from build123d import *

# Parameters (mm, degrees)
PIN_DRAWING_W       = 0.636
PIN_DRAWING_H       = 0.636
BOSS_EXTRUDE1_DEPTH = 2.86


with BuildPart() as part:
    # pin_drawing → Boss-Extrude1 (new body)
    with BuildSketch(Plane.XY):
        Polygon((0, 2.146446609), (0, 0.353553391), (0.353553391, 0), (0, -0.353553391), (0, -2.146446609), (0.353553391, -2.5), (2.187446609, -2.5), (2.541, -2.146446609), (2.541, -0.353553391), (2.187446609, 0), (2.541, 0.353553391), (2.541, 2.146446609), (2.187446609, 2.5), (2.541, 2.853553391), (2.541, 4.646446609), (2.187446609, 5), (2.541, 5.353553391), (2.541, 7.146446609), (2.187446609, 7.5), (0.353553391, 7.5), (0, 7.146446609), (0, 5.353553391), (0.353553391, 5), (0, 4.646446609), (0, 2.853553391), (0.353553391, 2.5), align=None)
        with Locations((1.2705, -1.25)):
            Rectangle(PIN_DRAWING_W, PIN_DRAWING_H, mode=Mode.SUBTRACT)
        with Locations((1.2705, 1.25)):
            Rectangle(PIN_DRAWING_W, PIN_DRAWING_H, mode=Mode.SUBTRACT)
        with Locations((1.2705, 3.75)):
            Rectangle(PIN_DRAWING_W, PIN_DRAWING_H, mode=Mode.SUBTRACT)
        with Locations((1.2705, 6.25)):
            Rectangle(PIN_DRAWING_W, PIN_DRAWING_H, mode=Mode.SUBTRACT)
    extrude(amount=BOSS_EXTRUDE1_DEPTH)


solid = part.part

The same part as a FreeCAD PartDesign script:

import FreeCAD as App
import Part
import Sketcher

doc = App.newDocument("Part")
params = doc.addObject("Spreadsheet::Sheet", "Params")
for row, (alias, value) in enumerate([
    ("sketch1_length", "0.5 mm"),
    ("pad1_length", "2.86 mm"),
], start=1):
    params.set(f"A{row}", alias)
    params.set(f"B{row}", "=" + value)
    params.setAlias(f"B{row}", alias)

body = doc.addObject("PartDesign::Body", "Body")

sketch1 = doc.addObject("Sketcher::SketchObject", "Sketch")
body.addObject(sketch1)
sketch1.AttachmentSupport = (doc.XY_Plane, [""])
sketch1.MapMode = "FlatFace"
sketch1.addGeometry([
    Part.LineSegment(App.Vector(0, 2.146447, 0), App.Vector(0, 0.353553, 0)),
    Part.LineSegment(App.Vector(0, 0.353553, 0), App.Vector(0.353553, 0, 0)),
    Part.LineSegment(App.Vector(0.353553, 0, 0), App.Vector(0, -0.353553, 0)),
    Part.LineSegment(App.Vector(0, -0.353553, 0), App.Vector(0, -2.146447, 0)),
    Part.LineSegment(App.Vector(0, -2.146447, 0), App.Vector(0.353553, -2.5, 0)),
    Part.LineSegment(App.Vector(0.353553, -2.5, 0), App.Vector(2.187447, -2.5, 0)),
    Part.LineSegment(App.Vector(2.187447, -2.5, 0), App.Vector(2.541, -2.146447, 0)),
    Part.LineSegment(App.Vector(2.541, -2.146447, 0), App.Vector(2.541, -0.353553, 0)),
    Part.LineSegment(App.Vector(2.541, -0.353553, 0), App.Vector(2.187447, 0, 0)),
    Part.LineSegment(App.Vector(2.187447, 0, 0), App.Vector(2.541, 0.353553, 0)),
    Part.LineSegment(App.Vector(2.541, 0.353553, 0), App.Vector(2.541, 2.146447, 0)),
    Part.LineSegment(App.Vector(2.541, 2.146447, 0), App.Vector(2.187447, 2.5, 0)),
    Part.LineSegment(App.Vector(2.187447, 2.5, 0), App.Vector(2.541, 2.853553, 0)),
    Part.LineSegment(App.Vector(2.541, 2.853553, 0), App.Vector(2.541, 4.646447, 0)),
    Part.LineSegment(App.Vector(2.541, 4.646447, 0), App.Vector(2.187447, 5, 0)),
    Part.LineSegment(App.Vector(2.187447, 5, 0), App.Vector(2.541, 5.353553, 0)),
    Part.LineSegment(App.Vector(2.541, 5.353553, 0), App.Vector(2.541, 7.146447, 0)),
    Part.LineSegment(App.Vector(2.541, 7.146447, 0), App.Vector(2.187447, 7.5, 0)),
    Part.LineSegment(App.Vector(2.187447, 7.5, 0), App.Vector(0.353553, 7.5, 0)),
    Part.LineSegment(App.Vector(0.353553, 7.5, 0), App.Vector(0, 7.146447, 0)),
    Part.LineSegment(App.Vector(0, 7.146447, 0), App.Vector(0, 5.353553, 0)),
    Part.LineSegment(App.Vector(0, 5.353553, 0), App.Vector(0.353553, 5, 0)),
    Part.LineSegment(App.Vector(0.353553, 5, 0), App.Vector(0, 4.646447, 0)),
    Part.LineSegment(App.Vector(0, 4.646447, 0), App.Vector(0, 2.853553, 0)),
    Part.LineSegment(App.Vector(0, 2.853553, 0), App.Vector(0.353553, 2.5, 0)),
    Part.LineSegment(App.Vector(0.353553, 2.5, 0), App.Vector(0, 2.146447, 0)),
    Part.LineSegment(App.Vector(1.5885, -1.568, 0), App.Vector(0.9525, -1.568, 0)),
    Part.LineSegment(App.Vector(0.9525, -1.568, 0), App.Vector(0.9525, -0.932, 0)),
    Part.LineSegment(App.Vector(0.9525, -0.932, 0), App.Vector(1.5885, -0.932, 0)),
    Part.LineSegment(App.Vector(1.5885, -0.932, 0), App.Vector(1.5885, -1.568, 0)),
    Part.LineSegment(App.Vector(1.5885, 0.932, 0), App.Vector(0.9525, 0.932, 0)),
    Part.LineSegment(App.Vector(0.9525, 0.932, 0), App.Vector(0.9525, 1.568, 0)),
    Part.LineSegment(App.Vector(0.9525, 1.568, 0), App.Vector(1.5885, 1.568, 0)),
    Part.LineSegment(App.Vector(1.5885, 1.568, 0), App.Vector(1.5885, 0.932, 0)),
    Part.LineSegment(App.Vector(1.5885, 3.432, 0), App.Vector(0.9525, 3.432, 0)),
    Part.LineSegment(App.Vector(0.9525, 3.432, 0), App.Vector(0.9525, 4.068, 0)),
    Part.LineSegment(App.Vector(0.9525, 4.068, 0), App.Vector(1.5885, 4.068, 0)),
    Part.LineSegment(App.Vector(1.5885, 4.068, 0), App.Vector(1.5885, 3.432, 0)),
    Part.LineSegment(App.Vector(1.5885, 5.932, 0), App.Vector(0.9525, 5.932, 0)),
    Part.LineSegment(App.Vector(0.9525, 5.932, 0), App.Vector(0.9525, 6.568, 0)),
    Part.LineSegment(App.Vector(0.9525, 6.568, 0), App.Vector(1.5885, 6.568, 0)),
    Part.LineSegment(App.Vector(1.5885, 6.568, 0), App.Vector(1.5885, 5.932, 0)),
], False)
sketch1.addConstraint([
    Sketcher.Constraint("Coincident", 0, 2, 1, 1),
    Sketcher.Constraint("Coincident", 1, 2, 2, 1),
    Sketcher.Constraint("Coincident", 2, 2, 3, 1),
    Sketcher.Constraint("Coincident", 3, 2, 4, 1),
    Sketcher.Constraint("Coincident", 4, 2, 5, 1),
    Sketcher.Constraint("Coincident", 5, 2, 6, 1),
    Sketcher.Constraint("Coincident", 6, 2, 7, 1),
    Sketcher.Constraint("Coincident", 7, 2, 8, 1),
    Sketcher.Constraint("Coincident", 8, 2, 9, 1),
    Sketcher.Constraint("Coincident", 9, 2, 10, 1),
    Sketcher.Constraint("Coincident", 10, 2, 11, 1),
    Sketcher.Constraint("Coincident", 11, 2, 12, 1),
    Sketcher.Constraint("Coincident", 12, 2, 13, 1),
    Sketcher.Constraint("Coincident", 13, 2, 14, 1),
    Sketcher.Constraint("Coincident", 14, 2, 15, 1),
    Sketcher.Constraint("Coincident", 15, 2, 16, 1),
    Sketcher.Constraint("Coincident", 16, 2, 17, 1),
    Sketcher.Constraint("Coincident", 17, 2, 18, 1),
    Sketcher.Constraint("Coincident", 18, 2, 19, 1),
    Sketcher.Constraint("Coincident", 19, 2, 20, 1),
    Sketcher.Constraint("Coincident", 20, 2, 21, 1),
    Sketcher.Constraint("Coincident", 21, 2, 22, 1),
    Sketcher.Constraint("Coincident", 22, 2, 23, 1),
    Sketcher.Constraint("Coincident", 23, 2, 24, 1),
    Sketcher.Constraint("Coincident", 24, 2, 25, 1),
    Sketcher.Constraint("Coincident", 25, 2, 0, 1),
    Sketcher.Constraint("Coincident", 26, 2, 27, 1),
    Sketcher.Constraint("Coincident", 27, 2, 28, 1),
    Sketcher.Constraint("Coincident", 28, 2, 29, 1),
    Sketcher.Constraint("Coincident", 29, 2, 26, 1),
    Sketcher.Constraint("Coincident", 30, 2, 31, 1),
    Sketcher.Constraint("Coincident", 31, 2, 32, 1),
    Sketcher.Constraint("Coincident", 32, 2, 33, 1),
    Sketcher.Constraint("Coincident", 33, 2, 30, 1),
    Sketcher.Constraint("Coincident", 34, 2, 35, 1),
    Sketcher.Constraint("Coincident", 35, 2, 36, 1),
    Sketcher.Constraint("Coincident", 36, 2, 37, 1),
    Sketcher.Constraint("Coincident", 37, 2, 34, 1),
    Sketcher.Constraint("Coincident", 38, 2, 39, 1),
    Sketcher.Constraint("Coincident", 39, 2, 40, 1),
    Sketcher.Constraint("Coincident", 40, 2, 41, 1),
    Sketcher.Constraint("Coincident", 41, 2, 38, 1),
    Sketcher.Constraint("Vertical", 0),
    Sketcher.Constraint("Vertical", 3),
    Sketcher.Constraint("Horizontal", 5),
    Sketcher.Constraint("Vertical", 7),
    Sketcher.Constraint("Vertical", 10),
    Sketcher.Constraint("Vertical", 13),
    Sketcher.Constraint("Vertical", 16),
    Sketcher.Constraint("Horizontal", 18),
    Sketcher.Constraint("Vertical", 20),
    Sketcher.Constraint("Vertical", 23),
    Sketcher.Constraint("Horizontal", 26),
    Sketcher.Constraint("Vertical", 27),
    Sketcher.Constraint("Horizontal", 28),
    Sketcher.Constraint("Vertical", 29),
    Sketcher.Constraint("Horizontal", 30),
    Sketcher.Constraint("Vertical", 31),
    Sketcher.Constraint("Horizontal", 32),
    Sketcher.Constraint("Vertical", 33),
    Sketcher.Constraint("Horizontal", 34),
    Sketcher.Constraint("Vertical", 35),
    Sketcher.Constraint("Horizontal", 36),
    Sketcher.Constraint("Vertical", 37),
    Sketcher.Constraint("Horizontal", 38),
    Sketcher.Constraint("Vertical", 39),
    Sketcher.Constraint("Horizontal", 40),
    Sketcher.Constraint("Vertical", 41),
    Sketcher.Constraint("Symmetric", 0, 2, 2, 2, -1, 1),
    Sketcher.Constraint("Symmetric", 7, 2, 9, 2, -1),
    Sketcher.Constraint("Symmetric", 5, 2, 11, 2, -1),
    Sketcher.Constraint("Symmetric", 4, 2, 24, 2, -1),
    Sketcher.Constraint("Symmetric", 3, 2, 25, 2, -1),
    Sketcher.Constraint("Symmetric", 27, 2, 30, 2, -1),
    Sketcher.Constraint("Symmetric", 29, 2, 32, 2, -1),
    Sketcher.Constraint("PointOnObject", 1, 2, -1),
    Sketcher.Constraint("PointOnObject", 8, 2, -1),
    Sketcher.Constraint("PointOnObject", 19, 2, -2),
    Sketcher.Constraint("PointOnObject", 22, 2, -2),
    Sketcher.Constraint("Perpendicular", 1, 2),
    Sketcher.Constraint("Perpendicular", 2, 4),
    Sketcher.Constraint("Perpendicular", 4, 6),
    Sketcher.Constraint("Perpendicular", 6, 8),
    Sketcher.Constraint("Perpendicular", 9, 11),
    Sketcher.Constraint("Perpendicular", 11, 12),
    Sketcher.Constraint("Perpendicular", 12, 14),
    Sketcher.Constraint("Perpendicular", 14, 15),
    Sketcher.Constraint("Perpendicular", 15, 17),
    Sketcher.Constraint("Perpendicular", 17, 19),
    Sketcher.Constraint("Perpendicular", 19, 21),
    Sketcher.Constraint("Perpendicular", 21, 22),
    Sketcher.Constraint("Perpendicular", 22, 24),
    Sketcher.Constraint("Horizontal", 3, 2, 6, 2),
    Sketcher.Constraint("Horizontal", 2, 2, 7, 2),
    Sketcher.Constraint("Horizontal", 16, 2, 19, 2),
    Sketcher.Constraint("Horizontal", 15, 2, 20, 2),
    Sketcher.Constraint("Horizontal", 14, 2, 21, 2),
    Sketcher.Constraint("Horizontal", 13, 2, 22, 2),
    Sketcher.Constraint("Horizontal", 12, 2, 23, 2),
    Sketcher.Constraint("Vertical", 1, 2, 4, 2),
    Sketcher.Constraint("Vertical", 11, 2, 14, 2),
    Sketcher.Constraint("Vertical", 14, 2, 17, 2),
    Sketcher.Constraint("Vertical", 31, 2, 34, 2),
    Sketcher.Constraint("Vertical", 33, 2, 36, 2),
    Sketcher.Constraint("Vertical", 35, 2, 38, 2),
    Sketcher.Constraint("Vertical", 37, 2, 40, 2),
    Sketcher.Constraint("Equal", 10, 13),
    Sketcher.Constraint("Equal", 13, 16),
    Sketcher.Constraint("Equal", 40, 27),
    Sketcher.Constraint("Equal", 33, 35),
    Sketcher.Constraint("Equal", 37, 39),
    Sketcher.Constraint("DistanceY", -1, 1, 14, 2, 5.0),
    Sketcher.Constraint("Distance", 1, 0.5),
    Sketcher.Constraint("DistanceX", 26, 2, 26, 1, 0.636),
    Sketcher.Constraint("DistanceX", -1, 1, 6, 2, 2.541),
    Sketcher.Constraint("DistanceY", 26, 2, -1, 1, 1.568),
    Sketcher.Constraint("DistanceY", -1, 1, 34, 2, 3.432),
    Sketcher.Constraint("DistanceY", -1, 1, 38, 2, 5.932),
    Sketcher.Constraint("DistanceX", -1, 1, 26, 2, 0.9525),
])
sketch1.setExpression("Constraints[112]", "Params.sketch1_length")
pad1 = doc.addObject("PartDesign::Pad", "Pad")
body.addObject(pad1)
pad1.Profile = sketch1
pad1.setExpression("Length", "Params.pad1_length")

doc.recompute()
